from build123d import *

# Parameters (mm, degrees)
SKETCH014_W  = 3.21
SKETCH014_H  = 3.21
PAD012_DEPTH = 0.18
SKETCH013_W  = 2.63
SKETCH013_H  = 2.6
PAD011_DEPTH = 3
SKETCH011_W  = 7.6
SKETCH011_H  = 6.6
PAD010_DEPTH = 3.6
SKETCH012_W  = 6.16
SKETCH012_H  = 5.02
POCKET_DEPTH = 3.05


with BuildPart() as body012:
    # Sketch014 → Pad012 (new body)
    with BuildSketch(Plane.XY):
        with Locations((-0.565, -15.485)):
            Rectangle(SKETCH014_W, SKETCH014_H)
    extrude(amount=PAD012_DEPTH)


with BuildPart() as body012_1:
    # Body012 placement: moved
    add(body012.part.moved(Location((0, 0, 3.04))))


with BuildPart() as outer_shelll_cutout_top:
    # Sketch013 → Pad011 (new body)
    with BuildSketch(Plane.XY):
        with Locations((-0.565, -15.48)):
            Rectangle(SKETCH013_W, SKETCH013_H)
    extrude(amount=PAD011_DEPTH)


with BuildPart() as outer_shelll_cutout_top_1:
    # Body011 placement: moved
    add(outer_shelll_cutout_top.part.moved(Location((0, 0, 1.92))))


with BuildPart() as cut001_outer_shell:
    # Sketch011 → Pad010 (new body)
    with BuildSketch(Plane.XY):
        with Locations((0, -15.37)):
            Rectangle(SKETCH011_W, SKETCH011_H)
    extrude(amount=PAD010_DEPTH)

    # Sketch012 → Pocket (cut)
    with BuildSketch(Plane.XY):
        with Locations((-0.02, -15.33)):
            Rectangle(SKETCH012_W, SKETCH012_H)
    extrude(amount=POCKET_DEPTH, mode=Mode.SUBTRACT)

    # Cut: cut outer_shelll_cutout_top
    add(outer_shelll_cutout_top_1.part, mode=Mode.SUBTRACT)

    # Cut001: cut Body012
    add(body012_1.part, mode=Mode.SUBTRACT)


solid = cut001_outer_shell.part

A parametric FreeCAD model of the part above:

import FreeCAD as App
import Part
import Sketcher

V = App.Vector
Q = App.Units.Quantity

doc = App.newDocument("Part")
body = doc.addObject("PartDesign::Body", "Body")

# Sketch on XY plane
sketch1 = body.newObject("Sketcher::SketchObject", "Sketch")
sketch1.AttachmentSupport = (doc.getObject("XY_Plane"), [""])
sketch1.MapMode = "FlatFace"
sketch1.addGeometry([
    Part.LineSegment(V(-2.2, -13.9, 0), V(-2.2, -17.1, 0)),
    Part.LineSegment(V(-2.2, -17.1, 0), V(1, -17.1, 0)),
    Part.LineSegment(V(1, -17.1, 0), V(1, -13.9, 0)),
    Part.LineSegment(V(1, -13.9, 0), V(-2.2, -13.9, 0)),
], False)
sketch1.addConstraint([
    Sketcher.Constraint("Coincident", 0, 2, 1, 1),
    Sketcher.Constraint("Coincident", 1, 2, 2, 1),
    Sketcher.Constraint("Coincident", 2, 2, 3, 1),
    Sketcher.Constraint("Coincident", 3, 2, 0, 1),
    Sketcher.Constraint("Vertical", 0),
    Sketcher.Constraint("Horizontal", 1),
    Sketcher.Constraint("Vertical", 2),
    Sketcher.Constraint("Horizontal", 3),
    Sketcher.Constraint("Equal", 3, 0),
    Sketcher.Constraint("DistanceX", 1, 1, 1, 2, Q("3.21 mm")),
    Sketcher.Constraint("DistanceX", 0, 2, -1, 1, Q("2.17 mm")),
    Sketcher.Constraint("DistanceY", 0, 2, -1, 1, Q("17.09 mm")),
])
pad1 = body.newObject("PartDesign::Pad", "Pad")
pad1.Profile = sketch1
pad1.Length = 0.18
body2 = doc.addObject("PartDesign::Body", "Body001")
doc.recompute()

body.Placement = App.Placement(V(0, 0, 3.04), App.Rotation(V(0, 0, 1), 0))
boolean = body2.newObject("PartDesign::Boolean", "Boolean")
boolean.Type = "Fuse"
boolean.addObjects([body])
body3 = doc.addObject("PartDesign::Body", "Body002")

# Sketch on XY plane
sketch2 = body3.newObject("Sketcher::SketchObject", "Sketch001")
sketch2.AttachmentSupport = (doc.getObject("XY_Plane002"), [""])
sketch2.MapMode = "FlatFace"
sketch2.addGeometry([
    Part.LineSegment(V(-1.9, -14.2, 0), V(-1.9, -16.8, 0)),
    Part.LineSegment(V(-1.9, -16.8, 0), V(0.8, -16.8, 0)),
    Part.LineSegment(V(0.8, -16.8, 0), V(0.8, -14.2, 0)),
    Part.LineSegment(V(0.8, -14.2, 0), V(-1.9, -14.2, 0)),
], False)
sketch2.addConstraint([
    Sketcher.Constraint("Coincident", 0, 2, 1, 1),
    Sketcher.Constraint("Coincident", 1, 2, 2, 1),
    Sketcher.Constraint("Coincident", 2, 2, 3, 1),
    Sketcher.Constraint("Coincident", 3, 2, 0, 1),
    Sketcher.Constraint("Vertical", 0),
    Sketcher.Constraint("Horizontal", 1),
    Sketcher.Constraint("Vertical", 2),
    Sketcher.Constraint("Horizontal", 3),
    Sketcher.Constraint("DistanceY", 0, 2, 0, 1, Q("2.6 mm")),
    Sketcher.Constraint("DistanceX", 1, 1, 1, 2, Q("2.63 mm")),
    Sketcher.Constraint("DistanceX", 0, 2, -1, 1, Q("1.88 mm")),
    Sketcher.Constraint("DistanceY", 0, 2, -1, 1, Q("16.78 mm")),
])
pad2 = body3.newObject("PartDesign::Pad", "Pad001")
pad2.Profile = sketch2
pad2.Length = 3
body4 = doc.addObject("PartDesign::Body", "Body003")
doc.recompute()

body3.Placement = App.Placement(V(0, 0, 1.92), App.Rotation(V(0, 0, 1), 0))
boolean2 = body4.newObject("PartDesign::Boolean", "Boolean001")
boolean2.Type = "Fuse"
boolean2.addObjects([body3])
body5 = doc.addObject("PartDesign::Body", "Body004")

# Sketch on XY plane
sketch3 = body5.newObject("Sketcher::SketchObject", "Sketch002")
sketch3.AttachmentSupport = (doc.getObject("XY_Plane004"), [""])
sketch3.MapMode = "FlatFace"
sketch3.addGeometry([
    Part.LineSegment(V(-4, -12, 0), V(-4, -19, 0)),
    Part.LineSegment(V(-4, -19, 0), V(4, -19, 0)),
    Part.LineSegment(V(4, -19, 0), V(4, -12, 0)),
    Part.LineSegment(V(4, -12, 0), V(-4, -12, 0)),
], False)
sketch3.addConstraint([
    Sketcher.Constraint("Coincident", 0, 2, 1, 1),
    Sketcher.Constraint("Coincident", 1, 2, 2, 1),
    Sketcher.Constraint("Coincident", 2, 2, 3, 1),
    Sketcher.Constraint("Coincident", 3, 2, 0, 1),
    Sketcher.Constraint("Vertical", 0),
    Sketcher.Constraint("Horizontal", 1),
    Sketcher.Constraint("Vertical", 2),
    Sketcher.Constraint("Horizontal", 3),
    Sketcher.Constraint("DistanceX", 1, 1, 1, 2, Q("7.6 mm")),
    Sketcher.Constraint("DistanceY", 0, 2, 0, 1, Q("6.6 mm")),
    Sketcher.Constraint("DistanceX", 0, 2, -1, 1, Q("3.8 mm")),
    Sketcher.Constraint("DistanceY", 0, 2, -1, 1, Q("18.67 mm")),
])
pad3 = body5.newObject("PartDesign::Pad", "Pad002")
pad3.Profile = sketch3
pad3.Length = 3.6

# Sketch on XY plane
sketch4 = body5.newObject("Sketcher::SketchObject", "Sketch003")
sketch4.AttachmentSupport = (doc.getObject("XY_Plane004"), [""])
sketch4.MapMode = "FlatFace"
sketch4.addGeometry([
    Part.LineSegment(V(-3, -13, 0), V(-3, -18, 0)),
    Part.LineSegment(V(-3, -18, 0), V(3, -18, 0)),
    Part.LineSegment(V(3, -18, 0), V(3, -13, 0)),
    Part.LineSegment(V(3, -13, 0), V(-3, -13, 0)),
], False)
sketch4.addConstraint([
    Sketcher.Constraint("Coincident", 0, 2, 1, 1),
    Sketcher.Constraint("Coincident", 1, 2, 2, 1),
    Sketcher.Constraint("Coincident", 2, 2, 3, 1),
    Sketcher.Constraint("Coincident", 3, 2, 0, 1),
    Sketcher.Constraint("Vertical", 0),
    Sketcher.Constraint("Horizontal", 1),
    Sketcher.Constraint("Vertical", 2),
    Sketcher.Constraint("Horizontal", 3),
    Sketcher.Constraint("DistanceX", 1, 1, 1, 2, Q("6.16 mm")),
    Sketcher.Constraint("DistanceY", 0, 2, 0, 1, Q("5.02 mm")),
    Sketcher.Constraint("DistanceX", 0, 2, -1, 1, Q("3.1 mm")),
    Sketcher.Constraint("DistanceY", 0, 2, -1, 1, Q("17.84 mm")),
])
pocket1 = body5.newObject("PartDesign::Pocket", "Pocket")
pocket1.Profile = sketch4
pocket1.Length = 3.05
pocket1.Reversed = True
doc.recompute()

boolean3 = body5.newObject("PartDesign::Boolean", "Boolean002")
boolean3.Type = "Cut"
boolean3.addObjects([body4])
doc.recompute()

boolean4 = body5.newObject("PartDesign::Boolean", "Boolean003")
boolean4.Type = "Cut"
boolean4.addObjects([body2])

doc.recompute()
